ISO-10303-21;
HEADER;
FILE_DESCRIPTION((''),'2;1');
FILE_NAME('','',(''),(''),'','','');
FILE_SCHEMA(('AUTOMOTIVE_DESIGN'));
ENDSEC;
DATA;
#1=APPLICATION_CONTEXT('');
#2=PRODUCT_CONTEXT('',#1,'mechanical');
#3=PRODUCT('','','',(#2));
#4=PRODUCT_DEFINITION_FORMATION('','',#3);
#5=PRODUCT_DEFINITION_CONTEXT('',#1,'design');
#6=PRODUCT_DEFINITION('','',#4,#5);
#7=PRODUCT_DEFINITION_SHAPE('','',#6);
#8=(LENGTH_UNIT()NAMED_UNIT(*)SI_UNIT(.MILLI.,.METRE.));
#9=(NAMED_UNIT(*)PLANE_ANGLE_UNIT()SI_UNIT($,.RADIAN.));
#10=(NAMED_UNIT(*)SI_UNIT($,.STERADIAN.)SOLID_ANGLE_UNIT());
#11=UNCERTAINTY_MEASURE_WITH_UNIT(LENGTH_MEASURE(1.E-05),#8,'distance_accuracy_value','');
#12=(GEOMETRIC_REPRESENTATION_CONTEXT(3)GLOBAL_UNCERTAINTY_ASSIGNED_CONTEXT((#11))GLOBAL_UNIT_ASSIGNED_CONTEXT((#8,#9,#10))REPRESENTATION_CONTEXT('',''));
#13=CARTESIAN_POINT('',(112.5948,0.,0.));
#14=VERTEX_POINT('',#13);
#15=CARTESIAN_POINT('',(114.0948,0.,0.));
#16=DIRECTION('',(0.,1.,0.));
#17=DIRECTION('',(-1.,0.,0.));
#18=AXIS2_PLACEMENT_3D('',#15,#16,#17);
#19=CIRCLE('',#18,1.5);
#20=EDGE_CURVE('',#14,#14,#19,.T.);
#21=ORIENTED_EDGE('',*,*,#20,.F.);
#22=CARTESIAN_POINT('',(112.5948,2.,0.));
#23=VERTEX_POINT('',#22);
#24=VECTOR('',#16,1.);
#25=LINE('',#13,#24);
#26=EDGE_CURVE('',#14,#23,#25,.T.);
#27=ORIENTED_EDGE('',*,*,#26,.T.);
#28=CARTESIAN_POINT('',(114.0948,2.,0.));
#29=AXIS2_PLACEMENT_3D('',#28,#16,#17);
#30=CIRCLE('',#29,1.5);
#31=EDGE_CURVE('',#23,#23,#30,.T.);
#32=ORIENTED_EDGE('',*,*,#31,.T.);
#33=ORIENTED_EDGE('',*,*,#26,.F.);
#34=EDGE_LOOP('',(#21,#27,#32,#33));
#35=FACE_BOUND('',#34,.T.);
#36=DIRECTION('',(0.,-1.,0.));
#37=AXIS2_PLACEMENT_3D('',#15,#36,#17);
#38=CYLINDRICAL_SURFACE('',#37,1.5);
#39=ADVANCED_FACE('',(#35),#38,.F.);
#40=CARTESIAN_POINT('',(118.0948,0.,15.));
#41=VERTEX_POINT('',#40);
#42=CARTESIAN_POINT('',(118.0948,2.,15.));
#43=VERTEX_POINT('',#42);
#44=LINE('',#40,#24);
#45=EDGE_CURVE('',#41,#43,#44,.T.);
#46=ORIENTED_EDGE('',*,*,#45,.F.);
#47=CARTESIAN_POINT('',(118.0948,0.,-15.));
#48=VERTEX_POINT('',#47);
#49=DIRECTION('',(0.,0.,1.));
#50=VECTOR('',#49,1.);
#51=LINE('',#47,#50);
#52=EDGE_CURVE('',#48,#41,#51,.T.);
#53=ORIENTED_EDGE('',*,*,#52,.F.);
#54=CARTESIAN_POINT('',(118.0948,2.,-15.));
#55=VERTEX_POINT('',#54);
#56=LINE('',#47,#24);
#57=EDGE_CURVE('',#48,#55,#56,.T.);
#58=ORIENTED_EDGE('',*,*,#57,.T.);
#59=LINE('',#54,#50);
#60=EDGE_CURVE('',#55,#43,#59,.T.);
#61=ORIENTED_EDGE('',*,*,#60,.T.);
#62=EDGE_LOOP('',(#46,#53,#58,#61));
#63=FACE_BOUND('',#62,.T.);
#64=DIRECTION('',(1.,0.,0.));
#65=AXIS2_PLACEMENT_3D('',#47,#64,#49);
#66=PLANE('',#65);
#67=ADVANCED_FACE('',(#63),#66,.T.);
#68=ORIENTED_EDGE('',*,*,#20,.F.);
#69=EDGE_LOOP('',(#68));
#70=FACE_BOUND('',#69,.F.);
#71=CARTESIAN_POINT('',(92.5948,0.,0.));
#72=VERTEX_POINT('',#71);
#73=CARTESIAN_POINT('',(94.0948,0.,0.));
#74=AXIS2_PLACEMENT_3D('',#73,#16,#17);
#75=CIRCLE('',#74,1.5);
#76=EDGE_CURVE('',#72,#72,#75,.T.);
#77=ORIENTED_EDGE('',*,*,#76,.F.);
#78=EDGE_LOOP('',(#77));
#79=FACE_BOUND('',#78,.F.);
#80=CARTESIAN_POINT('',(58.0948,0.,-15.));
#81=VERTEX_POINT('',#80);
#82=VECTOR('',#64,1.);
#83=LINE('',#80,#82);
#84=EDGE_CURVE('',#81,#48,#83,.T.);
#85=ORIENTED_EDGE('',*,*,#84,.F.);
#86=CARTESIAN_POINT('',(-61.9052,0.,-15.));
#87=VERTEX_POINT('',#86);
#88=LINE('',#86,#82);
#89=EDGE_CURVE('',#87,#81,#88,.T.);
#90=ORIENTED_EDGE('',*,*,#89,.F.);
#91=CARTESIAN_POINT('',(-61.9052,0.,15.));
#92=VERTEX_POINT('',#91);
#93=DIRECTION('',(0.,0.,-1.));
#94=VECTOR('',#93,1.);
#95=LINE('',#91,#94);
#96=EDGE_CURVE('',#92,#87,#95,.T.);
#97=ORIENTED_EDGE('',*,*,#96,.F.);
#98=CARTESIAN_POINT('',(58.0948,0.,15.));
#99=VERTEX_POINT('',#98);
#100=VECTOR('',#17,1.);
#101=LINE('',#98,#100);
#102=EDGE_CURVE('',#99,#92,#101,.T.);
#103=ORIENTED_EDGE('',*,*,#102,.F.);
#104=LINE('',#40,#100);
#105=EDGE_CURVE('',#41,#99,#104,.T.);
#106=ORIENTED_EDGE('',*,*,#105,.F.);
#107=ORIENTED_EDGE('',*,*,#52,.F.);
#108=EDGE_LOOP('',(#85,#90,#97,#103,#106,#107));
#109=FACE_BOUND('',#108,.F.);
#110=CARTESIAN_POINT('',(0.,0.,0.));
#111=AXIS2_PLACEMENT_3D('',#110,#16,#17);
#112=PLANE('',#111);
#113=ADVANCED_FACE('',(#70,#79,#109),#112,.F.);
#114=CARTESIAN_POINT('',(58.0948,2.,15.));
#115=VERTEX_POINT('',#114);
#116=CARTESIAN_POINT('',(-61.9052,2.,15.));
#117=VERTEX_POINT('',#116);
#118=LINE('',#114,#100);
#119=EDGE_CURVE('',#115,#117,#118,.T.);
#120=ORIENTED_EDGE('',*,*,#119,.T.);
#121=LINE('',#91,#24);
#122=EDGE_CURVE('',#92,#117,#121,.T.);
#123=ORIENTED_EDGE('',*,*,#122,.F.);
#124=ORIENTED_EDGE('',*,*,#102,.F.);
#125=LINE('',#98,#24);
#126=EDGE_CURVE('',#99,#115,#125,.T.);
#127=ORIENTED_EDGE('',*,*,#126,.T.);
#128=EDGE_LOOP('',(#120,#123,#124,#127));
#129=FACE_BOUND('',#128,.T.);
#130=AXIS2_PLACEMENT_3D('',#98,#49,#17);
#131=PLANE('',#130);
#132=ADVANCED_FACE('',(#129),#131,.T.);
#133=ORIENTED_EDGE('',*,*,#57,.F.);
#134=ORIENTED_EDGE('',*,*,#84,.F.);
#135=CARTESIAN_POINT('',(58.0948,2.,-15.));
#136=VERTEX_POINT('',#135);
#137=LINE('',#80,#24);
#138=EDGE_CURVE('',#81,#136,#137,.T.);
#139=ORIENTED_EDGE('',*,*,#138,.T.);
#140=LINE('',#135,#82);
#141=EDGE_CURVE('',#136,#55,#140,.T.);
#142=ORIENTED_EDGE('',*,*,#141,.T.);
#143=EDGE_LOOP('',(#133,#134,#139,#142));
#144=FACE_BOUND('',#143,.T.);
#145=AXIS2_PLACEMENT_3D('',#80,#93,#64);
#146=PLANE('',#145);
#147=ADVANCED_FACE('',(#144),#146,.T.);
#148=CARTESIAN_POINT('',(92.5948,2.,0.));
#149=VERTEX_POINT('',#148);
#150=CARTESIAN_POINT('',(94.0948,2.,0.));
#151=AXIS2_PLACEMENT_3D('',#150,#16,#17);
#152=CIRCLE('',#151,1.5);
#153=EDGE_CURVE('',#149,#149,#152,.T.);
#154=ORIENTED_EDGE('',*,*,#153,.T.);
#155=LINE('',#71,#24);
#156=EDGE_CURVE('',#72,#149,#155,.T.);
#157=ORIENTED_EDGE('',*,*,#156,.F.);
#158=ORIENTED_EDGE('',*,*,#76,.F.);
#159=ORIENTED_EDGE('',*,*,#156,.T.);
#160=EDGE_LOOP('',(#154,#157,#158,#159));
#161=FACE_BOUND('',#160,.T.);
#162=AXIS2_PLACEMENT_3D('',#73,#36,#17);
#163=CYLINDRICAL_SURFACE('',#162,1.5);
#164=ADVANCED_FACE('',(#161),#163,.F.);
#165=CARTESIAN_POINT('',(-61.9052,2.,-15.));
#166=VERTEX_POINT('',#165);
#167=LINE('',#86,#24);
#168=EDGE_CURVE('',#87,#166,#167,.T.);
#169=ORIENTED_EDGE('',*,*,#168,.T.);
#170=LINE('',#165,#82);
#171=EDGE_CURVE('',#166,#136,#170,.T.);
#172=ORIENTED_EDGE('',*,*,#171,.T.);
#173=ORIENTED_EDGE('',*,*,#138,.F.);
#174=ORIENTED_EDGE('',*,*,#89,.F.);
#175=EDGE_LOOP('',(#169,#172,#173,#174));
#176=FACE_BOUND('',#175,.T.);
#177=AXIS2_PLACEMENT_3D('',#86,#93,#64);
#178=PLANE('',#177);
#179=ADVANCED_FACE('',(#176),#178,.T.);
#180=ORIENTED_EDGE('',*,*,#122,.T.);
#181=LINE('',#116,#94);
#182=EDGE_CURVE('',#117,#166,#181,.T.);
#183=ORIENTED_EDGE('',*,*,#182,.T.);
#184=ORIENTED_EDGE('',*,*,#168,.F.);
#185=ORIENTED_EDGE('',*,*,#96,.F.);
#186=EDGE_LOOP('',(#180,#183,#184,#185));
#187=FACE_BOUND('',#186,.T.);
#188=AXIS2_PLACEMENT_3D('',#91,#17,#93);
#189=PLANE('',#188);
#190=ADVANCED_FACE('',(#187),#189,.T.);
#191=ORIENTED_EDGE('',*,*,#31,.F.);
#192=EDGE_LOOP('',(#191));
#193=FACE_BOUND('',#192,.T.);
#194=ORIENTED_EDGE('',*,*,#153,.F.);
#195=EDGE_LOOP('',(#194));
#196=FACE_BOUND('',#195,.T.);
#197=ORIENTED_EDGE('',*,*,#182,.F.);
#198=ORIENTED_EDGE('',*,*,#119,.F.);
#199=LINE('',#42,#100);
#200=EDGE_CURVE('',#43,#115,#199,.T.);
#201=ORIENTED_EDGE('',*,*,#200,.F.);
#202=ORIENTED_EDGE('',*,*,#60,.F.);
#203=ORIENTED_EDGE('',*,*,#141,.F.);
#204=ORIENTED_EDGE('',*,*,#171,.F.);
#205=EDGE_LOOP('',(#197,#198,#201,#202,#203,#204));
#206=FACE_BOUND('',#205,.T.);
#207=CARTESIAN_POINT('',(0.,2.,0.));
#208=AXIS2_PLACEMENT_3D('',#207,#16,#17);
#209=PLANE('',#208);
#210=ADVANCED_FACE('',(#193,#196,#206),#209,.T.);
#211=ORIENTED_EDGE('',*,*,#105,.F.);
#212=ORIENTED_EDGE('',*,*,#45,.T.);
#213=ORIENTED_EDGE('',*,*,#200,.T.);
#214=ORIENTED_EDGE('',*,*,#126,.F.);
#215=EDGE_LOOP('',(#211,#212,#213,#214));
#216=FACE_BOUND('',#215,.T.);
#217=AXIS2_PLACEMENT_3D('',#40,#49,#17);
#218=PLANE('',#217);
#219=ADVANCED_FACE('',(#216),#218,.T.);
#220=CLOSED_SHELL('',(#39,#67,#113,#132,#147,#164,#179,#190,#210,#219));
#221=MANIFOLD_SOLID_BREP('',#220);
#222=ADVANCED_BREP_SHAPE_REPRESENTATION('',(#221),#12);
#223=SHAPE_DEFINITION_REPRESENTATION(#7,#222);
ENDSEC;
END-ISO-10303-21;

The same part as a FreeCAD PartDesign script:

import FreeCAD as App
import Part
import Sketcher


def add_polygon(sketch, points):
    """Adds a closed chain of lines whose ends are joined by coincident constraints."""
    first, n = sketch.GeometryCount, len(points)
    for a, b in zip(points, points[1:] + points[:1]):
        sketch.addGeometry(Part.LineSegment(App.Vector(*a, 0), App.Vector(*b, 0)), False)
    for i in range(n):
        sketch.addConstraint(Sketcher.Constraint("Coincident", first + i, 2, first + (i + 1) % n, 1))

doc = App.newDocument("Part")
body = doc.addObject("PartDesign::Body", "Body")

# Sketch on XZ plane
sketch1 = body.newObject("Sketcher::SketchObject", "Sketch")
sketch1.AttachmentSupport = (doc.getObject("XZ_Plane"), [""])
sketch1.MapMode = "FlatFace"
add_polygon(sketch1, [(118.1, -15), (-61.9, -15), (-61.9, 15), (118.1, 15)])  # lines 0-3
sketch1.addGeometry(Part.Circle(App.Vector(114.1, 0, 0), App.Vector(0, 0, 1), 1.5), False)  # 4
sketch1.addGeometry(Part.Circle(App.Vector(94.1, 0, 0), App.Vector(0, 0, 1), 1.5), False)  # 5
sketch1.addConstraint(Sketcher.Constraint("Horizontal", 0))
sketch1.addConstraint(Sketcher.Constraint("Vertical", 1))
sketch1.addConstraint(Sketcher.Constraint("Horizontal", 2))
sketch1.addConstraint(Sketcher.Constraint("Vertical", 3))
sketch1.addConstraint(Sketcher.Constraint("Equal", 4, 5))
sketch1.addConstraint(Sketcher.Constraint("PointOnObject", 4, 3, -1))
sketch1.addConstraint(Sketcher.Constraint("PointOnObject", 5, 3, -1))
sketch1.addConstraint(Sketcher.Constraint("Diameter", 4, 3.0))
sketch1.addConstraint(Sketcher.Constraint("DistanceX", 0, 2, 0, 1, 180.0))
sketch1.addConstraint(Sketcher.Constraint("DistanceY", 1, 1, 1, 2, 30.0))
sketch1.addConstraint(Sketcher.Constraint("DistanceY", 0, 2, -1, 1, 15.0))
sketch1.addConstraint(Sketcher.Constraint("DistanceX", 5, 3, 4, 3, 20.0))
sketch1.addConstraint(Sketcher.Constraint("DistanceX", 0, 2, 5, 3, 156.0))
sketch1.addConstraint(Sketcher.Constraint("DistanceX", -1, 1, 4, 3, 114.0948))
pad1 = body.newObject("PartDesign::Pad", "Pad")
pad1.Profile = sketch1
pad1.Length = 2
pad1.Reversed = True

doc.recompute()
